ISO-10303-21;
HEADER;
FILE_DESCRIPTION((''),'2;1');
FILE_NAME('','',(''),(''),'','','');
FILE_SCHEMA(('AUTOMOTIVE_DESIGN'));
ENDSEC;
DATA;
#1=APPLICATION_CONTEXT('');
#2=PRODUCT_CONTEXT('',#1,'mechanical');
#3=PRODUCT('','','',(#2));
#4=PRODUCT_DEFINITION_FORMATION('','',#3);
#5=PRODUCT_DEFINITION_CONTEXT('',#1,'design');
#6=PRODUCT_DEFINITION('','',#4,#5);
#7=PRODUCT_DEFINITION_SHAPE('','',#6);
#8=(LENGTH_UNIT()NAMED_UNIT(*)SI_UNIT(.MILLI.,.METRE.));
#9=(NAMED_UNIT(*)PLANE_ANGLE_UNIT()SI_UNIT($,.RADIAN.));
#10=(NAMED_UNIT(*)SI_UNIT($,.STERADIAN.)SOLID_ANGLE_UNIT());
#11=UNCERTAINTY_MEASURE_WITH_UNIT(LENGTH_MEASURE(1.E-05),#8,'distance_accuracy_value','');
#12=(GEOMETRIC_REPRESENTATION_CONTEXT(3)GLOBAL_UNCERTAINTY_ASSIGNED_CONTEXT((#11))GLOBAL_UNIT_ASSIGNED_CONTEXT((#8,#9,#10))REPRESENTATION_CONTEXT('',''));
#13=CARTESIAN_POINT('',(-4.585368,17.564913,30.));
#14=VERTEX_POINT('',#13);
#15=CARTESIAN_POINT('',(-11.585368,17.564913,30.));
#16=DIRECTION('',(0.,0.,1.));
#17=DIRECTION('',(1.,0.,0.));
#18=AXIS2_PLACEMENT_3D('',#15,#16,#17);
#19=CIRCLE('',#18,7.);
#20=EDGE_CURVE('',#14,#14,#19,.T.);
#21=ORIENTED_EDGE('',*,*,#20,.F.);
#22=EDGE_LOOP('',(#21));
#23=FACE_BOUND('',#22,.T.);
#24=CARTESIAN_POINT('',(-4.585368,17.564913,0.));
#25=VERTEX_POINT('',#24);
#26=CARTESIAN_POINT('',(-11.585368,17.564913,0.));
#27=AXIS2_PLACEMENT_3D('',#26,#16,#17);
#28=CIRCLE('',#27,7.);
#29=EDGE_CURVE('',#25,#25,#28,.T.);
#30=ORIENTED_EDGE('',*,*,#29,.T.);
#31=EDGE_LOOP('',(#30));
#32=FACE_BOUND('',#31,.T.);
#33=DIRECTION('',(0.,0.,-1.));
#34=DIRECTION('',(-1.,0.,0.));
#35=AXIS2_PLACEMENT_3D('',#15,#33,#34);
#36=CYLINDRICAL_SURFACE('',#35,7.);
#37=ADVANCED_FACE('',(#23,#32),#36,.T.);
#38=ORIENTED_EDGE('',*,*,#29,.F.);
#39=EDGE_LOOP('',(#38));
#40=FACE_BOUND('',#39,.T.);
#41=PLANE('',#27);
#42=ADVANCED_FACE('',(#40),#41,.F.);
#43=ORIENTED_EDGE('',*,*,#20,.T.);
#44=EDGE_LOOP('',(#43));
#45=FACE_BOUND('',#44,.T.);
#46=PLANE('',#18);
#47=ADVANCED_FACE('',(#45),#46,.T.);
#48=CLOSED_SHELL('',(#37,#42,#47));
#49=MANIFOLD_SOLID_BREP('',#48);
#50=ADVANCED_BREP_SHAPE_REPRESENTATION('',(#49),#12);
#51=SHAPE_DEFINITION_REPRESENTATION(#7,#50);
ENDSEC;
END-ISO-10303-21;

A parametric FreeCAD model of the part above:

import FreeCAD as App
import Part
import Sketcher
from FreeCAD import Vector

doc = App.newDocument("Part")
body = doc.addObject("PartDesign::Body", "Body")

sketch1 = body.newObject("Sketcher::SketchObject", "Sketch")
sketch1.AttachmentSupport = (doc.getObject("XY_Plane"), [""])
sketch1.MapMode = "FlatFace"
sketch1.addGeometry(Part.Circle(Vector(-12, 18, 0), Vector(0, 0, 1), 7), False)
sketch1.addConstraint(Sketcher.Constraint("Diameter", 0, 14.0))
sketch1.addConstraint(Sketcher.Constraint("DistanceX", 0, 3, -1, 1, 11.585368))
sketch1.addConstraint(Sketcher.Constraint("DistanceY", -1, 1, 0, 3, 17.564913))
pad1 = body.newObject("PartDesign::Pad", "Pad")
pad1.Profile = sketch1
pad1.Length = 30

doc.recompute()
